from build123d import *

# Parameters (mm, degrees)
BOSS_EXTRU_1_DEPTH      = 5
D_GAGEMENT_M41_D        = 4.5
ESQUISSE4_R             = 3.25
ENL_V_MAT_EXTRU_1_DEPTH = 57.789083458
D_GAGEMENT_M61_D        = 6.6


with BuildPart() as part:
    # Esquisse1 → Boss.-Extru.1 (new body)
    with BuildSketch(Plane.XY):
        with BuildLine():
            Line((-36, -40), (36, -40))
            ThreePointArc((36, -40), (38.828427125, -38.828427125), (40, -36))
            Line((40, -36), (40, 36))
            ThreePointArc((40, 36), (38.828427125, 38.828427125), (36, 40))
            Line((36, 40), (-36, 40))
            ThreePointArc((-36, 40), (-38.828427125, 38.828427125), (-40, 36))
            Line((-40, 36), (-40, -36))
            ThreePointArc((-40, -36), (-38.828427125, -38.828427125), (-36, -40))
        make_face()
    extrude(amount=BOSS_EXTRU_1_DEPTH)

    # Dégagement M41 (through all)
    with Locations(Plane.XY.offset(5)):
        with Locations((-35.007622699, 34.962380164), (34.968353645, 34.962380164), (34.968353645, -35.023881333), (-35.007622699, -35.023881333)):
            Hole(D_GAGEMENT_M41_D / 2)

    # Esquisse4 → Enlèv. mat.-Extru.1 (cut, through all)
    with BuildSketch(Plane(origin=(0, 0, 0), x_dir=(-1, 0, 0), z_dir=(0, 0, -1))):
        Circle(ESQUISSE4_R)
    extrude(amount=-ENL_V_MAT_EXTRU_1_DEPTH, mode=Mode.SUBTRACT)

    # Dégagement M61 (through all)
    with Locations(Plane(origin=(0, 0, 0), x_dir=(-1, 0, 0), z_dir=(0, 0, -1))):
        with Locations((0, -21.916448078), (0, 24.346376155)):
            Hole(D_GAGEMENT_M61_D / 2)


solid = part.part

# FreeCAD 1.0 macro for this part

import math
import FreeCAD as App
import Part
import Sketcher
Q = App.Units.Quantity

doc = App.newDocument("Part")
params = doc.addObject("Spreadsheet::Sheet", "Params")
for row, (alias, value) in enumerate([
    ("sketch1_radius", "4 mm"),
    ("sketch1_width", "72 mm"),
    ("pad1_length", "5 mm"),
    ("sketch2_diameter", "4.5 mm"),
    ("hole_diameter", "4.5 mm"),
    ("sketch3_diameter", "6.5 mm"),
    ("sketch4_diameter", "6.6 mm"),
    ("hole2_diameter", "6.6 mm"),
], start=1):
    params.set(f"A{row}", alias)
    params.set(f"B{row}", "=" + value)
    params.setAlias(f"B{row}", alias)

body = doc.addObject("PartDesign::Body", "Body")

# Sketch on XY plane
sketch1 = body.newObject("Sketcher::SketchObject", "Sketch")
sketch1.AttachmentSupport = (doc.getObject("XY_Plane"), [""])
sketch1.MapMode = "FlatFace"
sketch1.addGeometry([
    Part.LineSegment(App.Vector(-36, -40, 0), App.Vector(36, -40, 0)),  # 0
    Part.ArcOfCircle(Part.Circle(App.Vector(36, -36, 0), App.Vector(0, 0, 1), 4), math.radians(-90), math.radians(0)),  # 1
    Part.LineSegment(App.Vector(40, -36, 0), App.Vector(40, 36, 0)),  # 2
    Part.ArcOfCircle(Part.Circle(App.Vector(36, 36, 0), App.Vector(0, 0, 1), 4), math.radians(0), math.radians(90)),  # 3
    Part.LineSegment(App.Vector(36, 40, 0), App.Vector(-36, 40, 0)),  # 4
    Part.ArcOfCircle(Part.Circle(App.Vector(-36, 36, 0), App.Vector(0, 0, 1), 4), math.radians(90), math.radians(180)),  # 5
    Part.LineSegment(App.Vector(-40, 36, 0), App.Vector(-40, -36, 0)),  # 6
    Part.ArcOfCircle(Part.Circle(App.Vector(-36, -36, 0), App.Vector(0, 0, 1), 4), math.radians(180), math.radians(270)),  # 7
], False)
sketch1.addConstraint([
    Sketcher.Constraint("Tangent", 0, 2, 1, 1),
    Sketcher.Constraint("Tangent", 1, 2, 2, 1),
    Sketcher.Constraint("Tangent", 2, 2, 3, 1),
    Sketcher.Constraint("Tangent", 3, 2, 4, 1),
    Sketcher.Constraint("Tangent", 4, 2, 5, 1),
    Sketcher.Constraint("Tangent", 5, 2, 6, 1),
    Sketcher.Constraint("Tangent", 6, 2, 7, 1),
    Sketcher.Constraint("Tangent", 7, 2, 0, 1),
    Sketcher.Constraint("Horizontal", 0),
    Sketcher.Constraint("Vertical", 2),
    Sketcher.Constraint("Horizontal", 4),
    Sketcher.Constraint("Vertical", 6),
    Sketcher.Constraint("Equal", 1, 3),
    Sketcher.Constraint("Equal", 3, 5),
    Sketcher.Constraint("Equal", 5, 7),
    Sketcher.Constraint("Symmetric", 1, 3, 5, 3, -1, 1),
    Sketcher.Constraint("Equal", 4, 2),
    Sketcher.Constraint("Radius", 1, Q("4 mm")),
    Sketcher.Constraint("DistanceX", 0, 1, 0, 2, Q("72 mm")),
])
sketch1.setExpression("Constraints[17]", "Params.sketch1_radius")
sketch1.setExpression("Constraints[18]", "Params.sketch1_width")
pad1 = body.newObject("PartDesign::Pad", "Pad")
pad1.Profile = sketch1
pad1.setExpression("Length", "Params.pad1_length")

# Sketch on XY plane
sketch2 = body.newObject("Sketcher::SketchObject", "Sketch001")
sketch2.AttachmentSupport = (doc.getObject("XY_Plane"), [""])
sketch2.MapMode = "FlatFace"
sketch2.AttachmentOffset = App.Placement(App.Vector(0, 0, 5), App.Rotation())
sketch2.addGeometry([
    Part.Circle(App.Vector(-35, 35, 0), App.Vector(0, 0, 1), 2.2),
    Part.Circle(App.Vector(35, 35, 0), App.Vector(0, 0, 1), 2.2),
    Part.Circle(App.Vector(35, -35, 0), App.Vector(0, 0, 1), 2.2),
    Part.Circle(App.Vector(-35, -35, 0), App.Vector(0, 0, 1), 2.2),
], False)
sketch2.addConstraint([
    Sketcher.Constraint("Equal", 0, 1),
    Sketcher.Constraint("Equal", 1, 2),
    Sketcher.Constraint("Equal", 2, 3),
    Sketcher.Constraint("Horizontal", 0, 3, 1, 3),
    Sketcher.Constraint("Horizontal", 2, 3, 3, 3),
    Sketcher.Constraint("Vertical", 1, 3, 2, 3),
    Sketcher.Constraint("Vertical", 0, 3, 3, 3),
    Sketcher.Constraint("Diameter", 0, Q("4.5 mm")),
    Sketcher.Constraint("DistanceY", -1, 1, 0, 3, Q("34.96238 mm")),
    Sketcher.Constraint("DistanceY", 2, 3, -1, 1, Q("35.023881 mm")),
    Sketcher.Constraint("DistanceX", 0, 3, -1, 1, Q("35.007623 mm")),
    Sketcher.Constraint("DistanceX", -1, 1, 1, 3, Q("34.968354 mm")),
])
sketch2.setExpression("Constraints[7]", "Params.sketch2_diameter")
doc.recompute()
hole = body.newObject("PartDesign::Hole", "Hole")
hole.Profile = sketch2
hole.ThreadType = "None"
hole.setExpression("Diameter", "Params.hole_diameter")
hole.DepthType = "ThroughAll"

# Sketch on XY plane
sketch3 = body.newObject("Sketcher::SketchObject", "Sketch002")
sketch3.AttachmentSupport = (doc.getObject("XY_Plane"), [""])
sketch3.MapMode = "FlatFace"
sketch3.addGeometry(Part.Circle(App.Vector(0, 0, 0), App.Vector(0, 0, 1), 3.2), False)
sketch3.addConstraint([
    Sketcher.Constraint("Coincident", 0, 3, -1, 1),
    Sketcher.Constraint("Diameter", 0, Q("6.5 mm")),
])
sketch3.setExpression("Constraints[1]", "Params.sketch3_diameter")
pocket1 = body.newObject("PartDesign::Pocket", "Pocket")
pocket1.Profile = sketch3
pocket1.Type = "ThroughAll"
pocket1.Reversed = True

# Sketch on XY plane
sketch4 = body.newObject("Sketcher::SketchObject", "Sketch003")
sketch4.AttachmentSupport = (doc.getObject("XY_Plane"), [""])
sketch4.MapMode = "FlatFace"
sketch4.addGeometry([
    Part.Circle(App.Vector(0, -21.9, 0), App.Vector(0, 0, 1), 3.3),
    Part.Circle(App.Vector(0, 24.3, 0), App.Vector(0, 0, 1), 3.3),
], False)
sketch4.addConstraint([
    Sketcher.Constraint("Equal", 0, 1),
    Sketcher.Constraint("PointOnObject", 0, 3, -2),
    Sketcher.Constraint("PointOnObject", 1, 3, -2),
    Sketcher.Constraint("Diameter", 0, Q("6.6 mm")),
    Sketcher.Constraint("DistanceY", 0, 3, -1, 1, Q("21.916448 mm")),
    Sketcher.Constraint("DistanceY", -1, 1, 1, 3, Q("24.346376 mm")),
])
sketch4.setExpression("Constraints[3]", "Params.sketch4_diameter")
doc.recompute()
hole2 = body.newObject("PartDesign::Hole", "Hole001")
hole2.Profile = sketch4
hole2.ThreadType = "None"
hole2.setExpression("Diameter", "Params.hole2_diameter")
hole2.DepthType = "ThroughAll"
hole2.Reversed = True

doc.recompute()
